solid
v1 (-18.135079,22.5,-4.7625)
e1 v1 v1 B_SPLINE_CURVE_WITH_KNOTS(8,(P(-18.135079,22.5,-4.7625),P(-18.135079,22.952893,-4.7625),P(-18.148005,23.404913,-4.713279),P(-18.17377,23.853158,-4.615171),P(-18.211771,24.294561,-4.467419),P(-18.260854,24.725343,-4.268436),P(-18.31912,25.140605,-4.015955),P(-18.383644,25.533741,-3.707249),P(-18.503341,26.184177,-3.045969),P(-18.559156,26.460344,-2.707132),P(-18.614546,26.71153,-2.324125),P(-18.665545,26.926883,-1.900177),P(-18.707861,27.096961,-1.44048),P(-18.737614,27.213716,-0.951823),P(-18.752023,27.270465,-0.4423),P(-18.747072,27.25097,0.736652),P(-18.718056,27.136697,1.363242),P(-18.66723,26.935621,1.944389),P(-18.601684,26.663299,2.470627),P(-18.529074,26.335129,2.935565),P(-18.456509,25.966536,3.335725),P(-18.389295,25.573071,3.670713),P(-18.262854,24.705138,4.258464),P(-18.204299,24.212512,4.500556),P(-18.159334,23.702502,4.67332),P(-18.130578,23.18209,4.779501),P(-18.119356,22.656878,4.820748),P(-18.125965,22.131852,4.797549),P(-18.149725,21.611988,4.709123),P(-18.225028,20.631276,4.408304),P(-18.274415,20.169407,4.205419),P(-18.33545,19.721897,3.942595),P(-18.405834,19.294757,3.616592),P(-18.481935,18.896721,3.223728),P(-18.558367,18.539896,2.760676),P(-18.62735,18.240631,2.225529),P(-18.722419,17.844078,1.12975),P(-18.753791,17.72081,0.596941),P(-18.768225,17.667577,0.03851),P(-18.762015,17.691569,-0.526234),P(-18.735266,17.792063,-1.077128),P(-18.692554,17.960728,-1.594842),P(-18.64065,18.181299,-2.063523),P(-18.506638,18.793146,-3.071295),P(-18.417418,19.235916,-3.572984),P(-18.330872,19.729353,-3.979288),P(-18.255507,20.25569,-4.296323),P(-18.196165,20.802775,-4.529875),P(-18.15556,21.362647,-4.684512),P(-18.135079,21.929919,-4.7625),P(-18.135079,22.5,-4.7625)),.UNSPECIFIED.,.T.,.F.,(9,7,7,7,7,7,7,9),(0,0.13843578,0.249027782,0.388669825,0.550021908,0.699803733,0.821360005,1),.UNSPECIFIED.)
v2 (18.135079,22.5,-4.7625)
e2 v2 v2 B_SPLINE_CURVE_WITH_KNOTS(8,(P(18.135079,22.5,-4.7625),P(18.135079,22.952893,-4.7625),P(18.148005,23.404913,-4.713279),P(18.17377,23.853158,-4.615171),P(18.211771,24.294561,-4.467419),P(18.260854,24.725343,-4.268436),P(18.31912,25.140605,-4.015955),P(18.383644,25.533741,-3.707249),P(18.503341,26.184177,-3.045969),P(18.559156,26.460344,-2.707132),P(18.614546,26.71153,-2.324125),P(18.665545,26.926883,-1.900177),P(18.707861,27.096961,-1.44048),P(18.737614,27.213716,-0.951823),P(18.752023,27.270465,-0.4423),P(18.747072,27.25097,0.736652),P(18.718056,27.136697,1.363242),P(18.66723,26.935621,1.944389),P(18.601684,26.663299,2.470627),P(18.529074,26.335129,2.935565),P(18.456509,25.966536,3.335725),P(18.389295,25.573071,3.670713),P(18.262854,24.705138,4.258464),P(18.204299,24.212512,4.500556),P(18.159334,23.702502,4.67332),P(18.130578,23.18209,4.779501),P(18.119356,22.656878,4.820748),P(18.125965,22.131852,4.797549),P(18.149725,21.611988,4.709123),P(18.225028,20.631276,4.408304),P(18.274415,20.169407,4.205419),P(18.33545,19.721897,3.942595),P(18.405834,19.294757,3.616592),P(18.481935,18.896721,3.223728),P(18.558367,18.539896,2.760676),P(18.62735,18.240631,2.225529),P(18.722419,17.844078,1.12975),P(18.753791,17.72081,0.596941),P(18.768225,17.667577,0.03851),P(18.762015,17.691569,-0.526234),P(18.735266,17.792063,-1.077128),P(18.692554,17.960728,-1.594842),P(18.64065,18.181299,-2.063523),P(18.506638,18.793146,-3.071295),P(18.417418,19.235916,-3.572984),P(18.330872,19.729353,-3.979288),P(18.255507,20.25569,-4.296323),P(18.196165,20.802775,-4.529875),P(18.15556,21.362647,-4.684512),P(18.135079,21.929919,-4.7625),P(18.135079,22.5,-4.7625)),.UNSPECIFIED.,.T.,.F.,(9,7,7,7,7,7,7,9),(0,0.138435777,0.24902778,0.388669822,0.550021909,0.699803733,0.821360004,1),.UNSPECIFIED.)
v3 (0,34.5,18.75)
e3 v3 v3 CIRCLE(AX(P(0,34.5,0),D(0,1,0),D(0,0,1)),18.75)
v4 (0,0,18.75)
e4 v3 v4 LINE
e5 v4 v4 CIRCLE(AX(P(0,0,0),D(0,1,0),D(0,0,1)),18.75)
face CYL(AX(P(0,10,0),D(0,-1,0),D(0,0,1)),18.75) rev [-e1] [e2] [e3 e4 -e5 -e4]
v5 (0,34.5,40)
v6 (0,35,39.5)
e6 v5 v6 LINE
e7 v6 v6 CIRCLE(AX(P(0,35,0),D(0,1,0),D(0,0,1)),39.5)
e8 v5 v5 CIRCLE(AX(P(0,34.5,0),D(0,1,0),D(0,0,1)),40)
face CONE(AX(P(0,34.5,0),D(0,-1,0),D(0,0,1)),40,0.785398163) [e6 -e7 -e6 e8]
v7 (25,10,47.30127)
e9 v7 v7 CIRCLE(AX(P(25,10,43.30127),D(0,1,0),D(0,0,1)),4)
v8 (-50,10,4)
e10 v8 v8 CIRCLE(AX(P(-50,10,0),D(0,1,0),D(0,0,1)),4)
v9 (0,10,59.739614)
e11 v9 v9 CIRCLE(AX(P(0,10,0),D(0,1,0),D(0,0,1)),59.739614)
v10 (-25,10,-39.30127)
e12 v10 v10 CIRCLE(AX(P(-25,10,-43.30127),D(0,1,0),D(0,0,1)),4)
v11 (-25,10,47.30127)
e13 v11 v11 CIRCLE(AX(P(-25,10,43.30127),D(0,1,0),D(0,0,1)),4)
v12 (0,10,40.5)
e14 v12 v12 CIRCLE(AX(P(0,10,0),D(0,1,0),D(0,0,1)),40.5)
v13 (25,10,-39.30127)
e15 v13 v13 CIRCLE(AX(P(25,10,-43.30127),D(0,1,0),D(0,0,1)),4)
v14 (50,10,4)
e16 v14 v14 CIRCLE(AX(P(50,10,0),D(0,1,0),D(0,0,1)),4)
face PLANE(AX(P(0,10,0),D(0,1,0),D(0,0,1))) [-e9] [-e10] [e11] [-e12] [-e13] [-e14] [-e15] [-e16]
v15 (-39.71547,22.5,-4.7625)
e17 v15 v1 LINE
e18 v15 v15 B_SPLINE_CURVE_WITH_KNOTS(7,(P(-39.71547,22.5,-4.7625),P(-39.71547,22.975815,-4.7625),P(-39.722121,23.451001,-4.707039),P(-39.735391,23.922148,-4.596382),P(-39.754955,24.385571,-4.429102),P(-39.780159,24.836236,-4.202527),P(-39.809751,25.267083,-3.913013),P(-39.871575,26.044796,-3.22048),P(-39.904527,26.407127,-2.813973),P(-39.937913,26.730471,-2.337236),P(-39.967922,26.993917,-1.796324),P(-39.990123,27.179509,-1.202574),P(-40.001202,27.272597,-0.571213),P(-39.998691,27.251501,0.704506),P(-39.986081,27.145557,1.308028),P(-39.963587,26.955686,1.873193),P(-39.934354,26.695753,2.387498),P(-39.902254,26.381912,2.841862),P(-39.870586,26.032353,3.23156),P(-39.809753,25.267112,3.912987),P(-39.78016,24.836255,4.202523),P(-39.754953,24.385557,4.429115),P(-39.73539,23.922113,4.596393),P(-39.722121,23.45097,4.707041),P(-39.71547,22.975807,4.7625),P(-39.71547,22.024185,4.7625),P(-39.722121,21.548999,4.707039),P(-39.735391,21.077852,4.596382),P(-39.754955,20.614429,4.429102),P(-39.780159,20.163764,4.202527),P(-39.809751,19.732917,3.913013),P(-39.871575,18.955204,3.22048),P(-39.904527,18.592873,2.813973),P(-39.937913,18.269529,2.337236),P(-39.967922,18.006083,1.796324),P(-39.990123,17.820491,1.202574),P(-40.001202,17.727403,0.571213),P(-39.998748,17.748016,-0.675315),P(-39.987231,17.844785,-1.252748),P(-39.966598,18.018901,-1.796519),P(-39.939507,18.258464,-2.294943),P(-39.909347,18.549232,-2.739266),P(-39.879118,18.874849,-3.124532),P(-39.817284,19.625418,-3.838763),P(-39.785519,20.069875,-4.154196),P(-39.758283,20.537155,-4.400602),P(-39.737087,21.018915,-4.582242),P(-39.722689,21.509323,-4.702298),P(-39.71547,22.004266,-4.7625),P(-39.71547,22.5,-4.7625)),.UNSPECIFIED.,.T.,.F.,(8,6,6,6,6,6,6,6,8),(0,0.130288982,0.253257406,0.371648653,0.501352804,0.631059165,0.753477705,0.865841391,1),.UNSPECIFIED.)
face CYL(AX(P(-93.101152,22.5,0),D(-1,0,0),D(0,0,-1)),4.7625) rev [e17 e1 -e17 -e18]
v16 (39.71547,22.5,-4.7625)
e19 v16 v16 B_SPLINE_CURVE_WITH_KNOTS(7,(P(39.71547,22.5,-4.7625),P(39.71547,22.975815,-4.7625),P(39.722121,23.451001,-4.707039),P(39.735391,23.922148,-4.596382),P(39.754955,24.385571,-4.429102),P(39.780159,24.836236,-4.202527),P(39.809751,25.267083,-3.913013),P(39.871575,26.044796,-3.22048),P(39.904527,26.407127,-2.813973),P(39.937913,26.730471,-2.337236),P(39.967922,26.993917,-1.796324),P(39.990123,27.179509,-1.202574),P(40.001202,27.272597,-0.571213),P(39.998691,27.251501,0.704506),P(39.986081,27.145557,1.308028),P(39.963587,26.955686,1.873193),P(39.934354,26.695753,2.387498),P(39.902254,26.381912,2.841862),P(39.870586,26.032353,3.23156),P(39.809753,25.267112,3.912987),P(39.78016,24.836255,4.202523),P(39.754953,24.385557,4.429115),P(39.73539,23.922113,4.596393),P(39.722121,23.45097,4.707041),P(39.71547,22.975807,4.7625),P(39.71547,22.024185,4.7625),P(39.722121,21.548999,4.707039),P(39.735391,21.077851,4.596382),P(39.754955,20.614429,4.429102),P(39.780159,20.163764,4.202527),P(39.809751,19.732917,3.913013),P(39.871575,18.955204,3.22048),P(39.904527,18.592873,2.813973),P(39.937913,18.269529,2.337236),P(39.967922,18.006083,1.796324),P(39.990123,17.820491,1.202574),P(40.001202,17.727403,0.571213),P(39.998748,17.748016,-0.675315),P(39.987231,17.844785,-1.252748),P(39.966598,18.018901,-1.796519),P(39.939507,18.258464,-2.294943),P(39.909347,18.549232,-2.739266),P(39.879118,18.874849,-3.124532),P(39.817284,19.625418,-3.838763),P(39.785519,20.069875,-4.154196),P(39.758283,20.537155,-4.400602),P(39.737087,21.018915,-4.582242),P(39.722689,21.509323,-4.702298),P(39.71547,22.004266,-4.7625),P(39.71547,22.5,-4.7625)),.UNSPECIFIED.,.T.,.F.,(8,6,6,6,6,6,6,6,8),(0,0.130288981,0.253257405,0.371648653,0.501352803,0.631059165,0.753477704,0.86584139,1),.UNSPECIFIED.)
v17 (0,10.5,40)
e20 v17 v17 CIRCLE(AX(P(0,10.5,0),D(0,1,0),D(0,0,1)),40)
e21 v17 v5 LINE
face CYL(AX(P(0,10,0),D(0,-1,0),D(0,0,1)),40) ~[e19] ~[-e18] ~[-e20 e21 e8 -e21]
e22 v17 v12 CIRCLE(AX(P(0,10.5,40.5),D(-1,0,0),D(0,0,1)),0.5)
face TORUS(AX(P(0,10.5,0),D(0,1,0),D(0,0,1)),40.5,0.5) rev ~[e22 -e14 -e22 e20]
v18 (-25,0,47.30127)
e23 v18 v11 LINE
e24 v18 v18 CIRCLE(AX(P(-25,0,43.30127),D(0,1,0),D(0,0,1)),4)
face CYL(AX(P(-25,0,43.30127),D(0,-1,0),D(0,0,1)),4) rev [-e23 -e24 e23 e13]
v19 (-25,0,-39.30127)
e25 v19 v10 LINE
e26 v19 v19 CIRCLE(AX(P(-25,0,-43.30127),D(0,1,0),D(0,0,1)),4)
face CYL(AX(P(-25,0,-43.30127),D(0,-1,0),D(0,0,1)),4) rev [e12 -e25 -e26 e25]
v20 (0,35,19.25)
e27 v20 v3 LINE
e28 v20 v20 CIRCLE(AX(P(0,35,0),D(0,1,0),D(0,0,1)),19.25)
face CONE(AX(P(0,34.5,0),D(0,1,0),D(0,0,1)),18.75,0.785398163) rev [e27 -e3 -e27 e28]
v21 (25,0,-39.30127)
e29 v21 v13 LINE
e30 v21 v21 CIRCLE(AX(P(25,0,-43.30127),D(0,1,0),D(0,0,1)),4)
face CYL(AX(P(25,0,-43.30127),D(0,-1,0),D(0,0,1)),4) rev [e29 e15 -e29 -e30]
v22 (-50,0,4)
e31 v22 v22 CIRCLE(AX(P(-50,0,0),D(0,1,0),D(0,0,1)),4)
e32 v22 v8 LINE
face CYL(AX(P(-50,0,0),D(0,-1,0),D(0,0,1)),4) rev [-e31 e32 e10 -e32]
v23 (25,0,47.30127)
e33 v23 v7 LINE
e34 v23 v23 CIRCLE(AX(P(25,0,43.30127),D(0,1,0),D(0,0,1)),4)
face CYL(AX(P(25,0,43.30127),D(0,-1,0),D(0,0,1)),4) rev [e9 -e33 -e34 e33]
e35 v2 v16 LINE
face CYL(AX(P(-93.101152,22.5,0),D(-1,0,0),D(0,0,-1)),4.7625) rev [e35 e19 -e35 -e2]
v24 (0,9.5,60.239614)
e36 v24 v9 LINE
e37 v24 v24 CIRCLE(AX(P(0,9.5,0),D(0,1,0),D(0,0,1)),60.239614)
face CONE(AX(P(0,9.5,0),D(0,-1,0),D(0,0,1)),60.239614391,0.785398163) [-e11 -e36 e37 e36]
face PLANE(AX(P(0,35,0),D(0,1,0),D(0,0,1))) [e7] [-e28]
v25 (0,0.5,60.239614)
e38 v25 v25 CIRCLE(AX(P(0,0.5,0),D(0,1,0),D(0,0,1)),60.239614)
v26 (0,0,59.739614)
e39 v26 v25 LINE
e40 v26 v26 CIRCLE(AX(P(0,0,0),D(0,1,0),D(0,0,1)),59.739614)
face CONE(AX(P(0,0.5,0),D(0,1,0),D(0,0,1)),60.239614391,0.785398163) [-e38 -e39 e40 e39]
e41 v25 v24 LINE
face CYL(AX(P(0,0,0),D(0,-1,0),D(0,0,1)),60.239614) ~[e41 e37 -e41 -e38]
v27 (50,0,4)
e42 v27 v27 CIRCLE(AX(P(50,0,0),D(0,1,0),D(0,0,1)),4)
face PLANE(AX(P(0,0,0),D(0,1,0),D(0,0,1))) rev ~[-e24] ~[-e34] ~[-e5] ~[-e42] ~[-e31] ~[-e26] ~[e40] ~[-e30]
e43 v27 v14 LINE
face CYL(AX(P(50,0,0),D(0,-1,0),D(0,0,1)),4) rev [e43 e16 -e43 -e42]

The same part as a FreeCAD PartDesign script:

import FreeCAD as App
import Part
import Sketcher
Q = App.Units.Quantity


def edges_at(feature, points):
    """Names of the edges that pass closest to the given points."""
    edges = feature.Shape.Edges
    near = lambda p: min(range(len(edges)), key=lambda i: edges[i].distToShape(Part.Vertex(*p))[0])
    return sorted({f"Edge{near(p) + 1}" for p in points})

doc = App.newDocument("Part")
body = doc.addObject("PartDesign::Body", "Body")

sketch1 = body.newObject("Sketcher::SketchObject", "Sketch")
sketch1.AttachmentSupport = (doc.getObject("XZ_Plane"), [""])
sketch1.MapMode = "FlatFace"
sketch1.addGeometry([
    Part.Circle(App.Vector(0, 0, 0), App.Vector(0, 0, 1), 60.2),
    Part.Circle(App.Vector(-25, -43.3, 0), App.Vector(0, 0, 1), 4),
    Part.Circle(App.Vector(-50, 0, 0), App.Vector(0, 0, 1), 4),
    Part.Circle(App.Vector(-25, 43.3, 0), App.Vector(0, 0, 1), 4),
    Part.Circle(App.Vector(25, -43.3, 0), App.Vector(0, 0, 1), 4),
    Part.Circle(App.Vector(50, 0, 0), App.Vector(0, 0, 1), 4),
    Part.Circle(App.Vector(0, 0, 0), App.Vector(0, 0, 1), 18.8),
    Part.Circle(App.Vector(25, 43.3, 0), App.Vector(0, 0, 1), 4),
], False)
sketch1.addConstraint([
    Sketcher.Constraint("Coincident", 0, 3, -1, 1),
    Sketcher.Constraint("Coincident", 6, 3, -1, 1),
    Sketcher.Constraint("Equal", 1, 2),
    Sketcher.Constraint("Equal", 2, 3),
    Sketcher.Constraint("Equal", 3, 4),
    Sketcher.Constraint("Equal", 4, 5),
    Sketcher.Constraint("Equal", 5, 7),
    Sketcher.Constraint("Symmetric", 3, 3, 4, 3, -1, 1),
    Sketcher.Constraint("Symmetric", 2, 3, 5, 3, -1, 1),
    Sketcher.Constraint("Symmetric", 1, 3, 7, 3, -1, 1),
    Sketcher.Constraint("Symmetric", 1, 3, 4, 3, -2),
    Sketcher.Constraint("PointOnObject", 2, 3, -1),
    Sketcher.Constraint("Diameter", 1, Q("8 mm")),
    Sketcher.Constraint("Diameter", 6, Q("37.5 mm")),
    Sketcher.Constraint("DistanceX", 1, 3, -1, 1, Q("25 mm")),
    Sketcher.Constraint("DistanceX", 2, 3, -1, 1, Q("50 mm")),
    Sketcher.Constraint("Diameter", 0, Q("120.479229 mm")),
    Sketcher.Constraint("DistanceY", 1, 3, -1, 1, Q("43.30127 mm")),
])
pad1 = body.newObject("PartDesign::Pad", "Pad")
pad1.Profile = sketch1
pad1.Length = 10
pad1.Reversed = True

sketch2 = body.newObject("Sketcher::SketchObject", "Sketch001")
sketch2.AttachmentSupport = (doc.getObject("XZ_Plane"), [""])
sketch2.MapMode = "FlatFace"
sketch2.AttachmentOffset = App.Placement(App.Vector(0, 0, -10), App.Rotation())
sketch2.addGeometry([
    Part.Circle(App.Vector(0, 0, 0), App.Vector(0, 0, 1), 40),
    Part.Circle(App.Vector(0, 0, 0), App.Vector(0, 0, 1), 19),
], False)
sketch2.addConstraint([
    Sketcher.Constraint("Coincident", 0, 3, -1, 1),
    Sketcher.Constraint("Coincident", 1, 3, -1, 1),
    Sketcher.Constraint("Diameter", 0, Q("80 mm")),
    Sketcher.Constraint("Diameter", 1, Q("37.5 mm")),
])
pad2 = body.newObject("PartDesign::Pad", "Pad001")
pad2.Profile = sketch2
pad2.Length = 25
pad2.Reversed = True
doc.recompute()

chamfer = body.newObject("PartDesign::Chamfer", "Chamfer")
chamfer.Base = (pad2, edges_at(pad2, [
    (0, 0, -60.24),
    (0, 35, -40),
    (0, 35, -18.75),
    (0, 10, -60.24),
]))
chamfer.Size = 0.5
doc.recompute()

fillet = body.newObject("PartDesign::Fillet", "Fillet")
fillet.Base = (chamfer, edges_at(chamfer, [(0, 10, -40)]))
fillet.Radius = 0.5

sketch3 = body.newObject("Sketcher::SketchObject", "Sketch002")
sketch3.AttachmentSupport = (doc.getObject("YZ_Plane"), [""])
sketch3.MapMode = "FlatFace"
sketch3.addGeometry(Part.Circle(App.Vector(22.5, 0, 0), App.Vector(0, 0, 1), 4.8), False)
sketch3.addConstraint([
    Sketcher.Constraint("PointOnObject", 0, 3, -1),
    Sketcher.Constraint("Diameter", 0, Q("9.525 mm")),
    Sketcher.Constraint("DistanceX", -1, 1, 0, 3, Q("22.5 mm")),
])
pocket1 = body.newObject("PartDesign::Pocket", "Pocket")
pocket1.Profile = sketch3
pocket1.Type = "ThroughAll"
pocket1.Midplane = True

doc.recompute()
